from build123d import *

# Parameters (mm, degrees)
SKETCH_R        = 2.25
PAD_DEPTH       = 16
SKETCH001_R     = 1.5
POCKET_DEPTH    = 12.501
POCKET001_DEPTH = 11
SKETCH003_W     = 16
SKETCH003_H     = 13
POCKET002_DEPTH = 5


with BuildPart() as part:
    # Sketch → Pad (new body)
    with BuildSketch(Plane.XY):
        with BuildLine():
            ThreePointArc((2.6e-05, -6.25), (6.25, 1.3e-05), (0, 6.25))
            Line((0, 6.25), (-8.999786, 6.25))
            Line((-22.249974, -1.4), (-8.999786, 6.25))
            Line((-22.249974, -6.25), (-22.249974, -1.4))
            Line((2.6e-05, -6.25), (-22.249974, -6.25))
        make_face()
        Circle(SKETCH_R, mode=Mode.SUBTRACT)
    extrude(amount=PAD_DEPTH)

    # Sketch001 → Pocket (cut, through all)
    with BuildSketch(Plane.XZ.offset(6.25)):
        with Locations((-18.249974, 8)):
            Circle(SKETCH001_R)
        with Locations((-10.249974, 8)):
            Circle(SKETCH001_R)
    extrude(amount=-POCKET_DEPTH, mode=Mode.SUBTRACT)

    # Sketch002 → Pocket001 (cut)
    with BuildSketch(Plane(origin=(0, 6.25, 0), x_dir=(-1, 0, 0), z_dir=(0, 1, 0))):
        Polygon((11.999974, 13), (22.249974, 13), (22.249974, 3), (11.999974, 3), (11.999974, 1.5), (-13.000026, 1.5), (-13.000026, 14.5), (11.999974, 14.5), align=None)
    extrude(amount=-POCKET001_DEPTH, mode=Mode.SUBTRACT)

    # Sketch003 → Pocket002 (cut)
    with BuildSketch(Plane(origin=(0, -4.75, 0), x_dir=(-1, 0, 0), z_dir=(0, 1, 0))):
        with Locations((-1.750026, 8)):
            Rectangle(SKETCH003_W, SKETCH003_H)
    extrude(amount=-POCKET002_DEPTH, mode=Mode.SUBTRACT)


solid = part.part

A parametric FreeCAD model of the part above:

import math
import FreeCAD as App
import Part
import Sketcher

V = App.Vector
Q = App.Units.Quantity


def add_polygon(sketch, points):
    """Adds a closed chain of lines whose ends are joined by coincident constraints."""
    first, n = sketch.GeometryCount, len(points)
    for a, b in zip(points, points[1:] + points[:1]):
        sketch.addGeometry(Part.LineSegment(App.Vector(*a, 0), App.Vector(*b, 0)), False)
    for i in range(n):
        sketch.addConstraint(Sketcher.Constraint("Coincident", first + i, 2, first + (i + 1) % n, 1))

doc = App.newDocument("Part")
body = doc.addObject("PartDesign::Body", "Body")

sketch1 = doc.addObject("Sketcher::SketchObject", "Sketch")
body.addObject(sketch1)
sketch1.AttachmentSupport = (doc.XY_Plane, [""])
sketch1.MapMode = "FlatFace"
sketch1.addGeometry([
    Part.ArcOfCircle(Part.Circle(V(0, 0, 0), V(0, 0, 1), 6.2), math.radians(-90), math.radians(90)),
    Part.LineSegment(V(0, 6.2, 0), V(-9, 6.2, 0)),
    Part.LineSegment(V(-9, 6.2, 0), V(-22.2, -1.4, 0)),
    Part.LineSegment(V(-22.2, -1.4, 0), V(-22.2, -6.2, 0)),
    Part.LineSegment(V(-22.2, -6.2, 0), V(0, -6.2, 0)),
    Part.Circle(V(0, 0, 0), V(0, 0, 1), 2.2),
], False)
sketch1.addConstraint([
    Sketcher.Constraint("Tangent", 0, 2, 1, 1),
    Sketcher.Constraint("Coincident", 1, 2, 2, 1),
    Sketcher.Constraint("Coincident", 2, 2, 3, 1),
    Sketcher.Constraint("Coincident", 3, 2, 4, 1),
    Sketcher.Constraint("Coincident", 4, 2, 0, 1),
    Sketcher.Constraint("Horizontal", 1),
    Sketcher.Constraint("Vertical", 3),
    Sketcher.Constraint("Horizontal", 4),
    Sketcher.Constraint("Coincident", 0, 3, -1, 1),
    Sketcher.Constraint("Coincident", 5, 3, -1, 1),
    Sketcher.Constraint("Diameter", 5, 4.5),
    Sketcher.Constraint("Angle", 2, Q("-149.999999 deg")),
    Sketcher.Constraint("Radius", 0, 6.25),
    Sketcher.Constraint("Distance", 2, 15.299999),
    Sketcher.Constraint("DistanceX", 4, 1, 4, 2, 22.25),
    Sketcher.Constraint("DistanceX", 1, 2, 1, 1, 8.999786),
])
pad1 = doc.addObject("PartDesign::Pad", "Pad")
body.addObject(pad1)
pad1.Profile = sketch1
pad1.Length = 16

sketch2 = doc.addObject("Sketcher::SketchObject", "Sketch001")
body.addObject(sketch2)
sketch2.AttachmentSupport = (doc.XZ_Plane, [""])
sketch2.MapMode = "FlatFace"
sketch2.AttachmentOffset = App.Placement(V(0, 0, 6.25), App.Rotation())
sketch2.addGeometry([
    Part.Circle(V(-18.2, 8, 0), V(0, 0, 1), 1.5),
    Part.Circle(V(-10.2, 8, 0), V(0, 0, 1), 1.5),
], False)
sketch2.addConstraint([
    Sketcher.Constraint("Equal", 0, 1),
    Sketcher.Constraint("Horizontal", 0, 3, 1, 3),
    Sketcher.Constraint("Diameter", 0, 3.0),
    Sketcher.Constraint("DistanceY", -1, 1, 0, 3, 8.0),
    Sketcher.Constraint("DistanceX", 0, 3, 1, 3, 8.0),
    Sketcher.Constraint("DistanceX", 0, 3, -1, 1, 18.249974),
])
pocket1 = doc.addObject("PartDesign::Pocket", "Pocket")
body.addObject(pocket1)
pocket1.Profile = sketch2
pocket1.Type = "ThroughAll"

sketch3 = doc.addObject("Sketcher::SketchObject", "Sketch002")
body.addObject(sketch3)
sketch3.AttachmentSupport = (doc.XZ_Plane, [""])
sketch3.MapMode = "FlatFace"
sketch3.AttachmentOffset = App.Placement(V(0, 0, -6.25), App.Rotation())
add_polygon(sketch3, [(-22.2, 13), (-12, 13), (-12, 14.5), (13, 14.5), (13, 1.5), (-12, 1.5), (-12, 3), (-22.2, 3)])
sketch3.addConstraint([
    Sketcher.Constraint("Horizontal", 0),
    Sketcher.Constraint("Vertical", 1),
    Sketcher.Constraint("Horizontal", 2),
    Sketcher.Constraint("Vertical", 3),
    Sketcher.Constraint("Horizontal", 4),
    Sketcher.Constraint("Vertical", 5),
    Sketcher.Constraint("Horizontal", 6),
    Sketcher.Constraint("Vertical", 7),
    Sketcher.Constraint("Vertical", 1, 2, 4, 2),
    Sketcher.Constraint("Equal", 1, 5),
    Sketcher.Constraint("DistanceX", 2, 1, 2, 2, 25.0),
    Sketcher.Constraint("DistanceY", 3, 2, 3, 1, 13.0),
    Sketcher.Constraint("DistanceY", 7, 1, 7, 2, 10.0),
    Sketcher.Constraint("DistanceY", -1, 1, 0, 2, 13.0),
    Sketcher.Constraint("DistanceX", 0, 1, 0, 2, 10.25),
    Sketcher.Constraint("DistanceX", 0, 2, -1, 1, 11.999974),
])
pocket2 = doc.addObject("PartDesign::Pocket", "Pocket001")
body.addObject(pocket2)
pocket2.Profile = sketch3
pocket2.Length = 11
pocket2.Reversed = True

sketch4 = doc.addObject("Sketcher::SketchObject", "Sketch003")
body.addObject(sketch4)
sketch4.AttachmentSupport = (doc.XZ_Plane, [""])
sketch4.MapMode = "FlatFace"
sketch4.AttachmentOffset = App.Placement(V(0, 0, 4.75), App.Rotation())
add_polygon(sketch4, [(10, 14), (10, 2), (-6, 2), (-6, 14)])
sketch4.addConstraint([
    Sketcher.Constraint("Vertical", 0),
    Sketcher.Constraint("Horizontal", 1),
    Sketcher.Constraint("Vertical", 2),
    Sketcher.Constraint("Horizontal", 3),
    Sketcher.Constraint("DistanceX", 1, 2, 1, 1, 16.0),
    Sketcher.Constraint("DistanceY", 0, 2, 0, 1, 13.0),
    Sketcher.Constraint("DistanceY", -1, 1, 0, 2, 1.5),
    Sketcher.Constraint("DistanceX", -1, 1, 0, 2, 9.750026),
])
pocket3 = doc.addObject("PartDesign::Pocket", "Pocket002")
body.addObject(pocket3)
pocket3.Profile = sketch4
pocket3.Length = 5
pocket3.Reversed = True

doc.recompute()
